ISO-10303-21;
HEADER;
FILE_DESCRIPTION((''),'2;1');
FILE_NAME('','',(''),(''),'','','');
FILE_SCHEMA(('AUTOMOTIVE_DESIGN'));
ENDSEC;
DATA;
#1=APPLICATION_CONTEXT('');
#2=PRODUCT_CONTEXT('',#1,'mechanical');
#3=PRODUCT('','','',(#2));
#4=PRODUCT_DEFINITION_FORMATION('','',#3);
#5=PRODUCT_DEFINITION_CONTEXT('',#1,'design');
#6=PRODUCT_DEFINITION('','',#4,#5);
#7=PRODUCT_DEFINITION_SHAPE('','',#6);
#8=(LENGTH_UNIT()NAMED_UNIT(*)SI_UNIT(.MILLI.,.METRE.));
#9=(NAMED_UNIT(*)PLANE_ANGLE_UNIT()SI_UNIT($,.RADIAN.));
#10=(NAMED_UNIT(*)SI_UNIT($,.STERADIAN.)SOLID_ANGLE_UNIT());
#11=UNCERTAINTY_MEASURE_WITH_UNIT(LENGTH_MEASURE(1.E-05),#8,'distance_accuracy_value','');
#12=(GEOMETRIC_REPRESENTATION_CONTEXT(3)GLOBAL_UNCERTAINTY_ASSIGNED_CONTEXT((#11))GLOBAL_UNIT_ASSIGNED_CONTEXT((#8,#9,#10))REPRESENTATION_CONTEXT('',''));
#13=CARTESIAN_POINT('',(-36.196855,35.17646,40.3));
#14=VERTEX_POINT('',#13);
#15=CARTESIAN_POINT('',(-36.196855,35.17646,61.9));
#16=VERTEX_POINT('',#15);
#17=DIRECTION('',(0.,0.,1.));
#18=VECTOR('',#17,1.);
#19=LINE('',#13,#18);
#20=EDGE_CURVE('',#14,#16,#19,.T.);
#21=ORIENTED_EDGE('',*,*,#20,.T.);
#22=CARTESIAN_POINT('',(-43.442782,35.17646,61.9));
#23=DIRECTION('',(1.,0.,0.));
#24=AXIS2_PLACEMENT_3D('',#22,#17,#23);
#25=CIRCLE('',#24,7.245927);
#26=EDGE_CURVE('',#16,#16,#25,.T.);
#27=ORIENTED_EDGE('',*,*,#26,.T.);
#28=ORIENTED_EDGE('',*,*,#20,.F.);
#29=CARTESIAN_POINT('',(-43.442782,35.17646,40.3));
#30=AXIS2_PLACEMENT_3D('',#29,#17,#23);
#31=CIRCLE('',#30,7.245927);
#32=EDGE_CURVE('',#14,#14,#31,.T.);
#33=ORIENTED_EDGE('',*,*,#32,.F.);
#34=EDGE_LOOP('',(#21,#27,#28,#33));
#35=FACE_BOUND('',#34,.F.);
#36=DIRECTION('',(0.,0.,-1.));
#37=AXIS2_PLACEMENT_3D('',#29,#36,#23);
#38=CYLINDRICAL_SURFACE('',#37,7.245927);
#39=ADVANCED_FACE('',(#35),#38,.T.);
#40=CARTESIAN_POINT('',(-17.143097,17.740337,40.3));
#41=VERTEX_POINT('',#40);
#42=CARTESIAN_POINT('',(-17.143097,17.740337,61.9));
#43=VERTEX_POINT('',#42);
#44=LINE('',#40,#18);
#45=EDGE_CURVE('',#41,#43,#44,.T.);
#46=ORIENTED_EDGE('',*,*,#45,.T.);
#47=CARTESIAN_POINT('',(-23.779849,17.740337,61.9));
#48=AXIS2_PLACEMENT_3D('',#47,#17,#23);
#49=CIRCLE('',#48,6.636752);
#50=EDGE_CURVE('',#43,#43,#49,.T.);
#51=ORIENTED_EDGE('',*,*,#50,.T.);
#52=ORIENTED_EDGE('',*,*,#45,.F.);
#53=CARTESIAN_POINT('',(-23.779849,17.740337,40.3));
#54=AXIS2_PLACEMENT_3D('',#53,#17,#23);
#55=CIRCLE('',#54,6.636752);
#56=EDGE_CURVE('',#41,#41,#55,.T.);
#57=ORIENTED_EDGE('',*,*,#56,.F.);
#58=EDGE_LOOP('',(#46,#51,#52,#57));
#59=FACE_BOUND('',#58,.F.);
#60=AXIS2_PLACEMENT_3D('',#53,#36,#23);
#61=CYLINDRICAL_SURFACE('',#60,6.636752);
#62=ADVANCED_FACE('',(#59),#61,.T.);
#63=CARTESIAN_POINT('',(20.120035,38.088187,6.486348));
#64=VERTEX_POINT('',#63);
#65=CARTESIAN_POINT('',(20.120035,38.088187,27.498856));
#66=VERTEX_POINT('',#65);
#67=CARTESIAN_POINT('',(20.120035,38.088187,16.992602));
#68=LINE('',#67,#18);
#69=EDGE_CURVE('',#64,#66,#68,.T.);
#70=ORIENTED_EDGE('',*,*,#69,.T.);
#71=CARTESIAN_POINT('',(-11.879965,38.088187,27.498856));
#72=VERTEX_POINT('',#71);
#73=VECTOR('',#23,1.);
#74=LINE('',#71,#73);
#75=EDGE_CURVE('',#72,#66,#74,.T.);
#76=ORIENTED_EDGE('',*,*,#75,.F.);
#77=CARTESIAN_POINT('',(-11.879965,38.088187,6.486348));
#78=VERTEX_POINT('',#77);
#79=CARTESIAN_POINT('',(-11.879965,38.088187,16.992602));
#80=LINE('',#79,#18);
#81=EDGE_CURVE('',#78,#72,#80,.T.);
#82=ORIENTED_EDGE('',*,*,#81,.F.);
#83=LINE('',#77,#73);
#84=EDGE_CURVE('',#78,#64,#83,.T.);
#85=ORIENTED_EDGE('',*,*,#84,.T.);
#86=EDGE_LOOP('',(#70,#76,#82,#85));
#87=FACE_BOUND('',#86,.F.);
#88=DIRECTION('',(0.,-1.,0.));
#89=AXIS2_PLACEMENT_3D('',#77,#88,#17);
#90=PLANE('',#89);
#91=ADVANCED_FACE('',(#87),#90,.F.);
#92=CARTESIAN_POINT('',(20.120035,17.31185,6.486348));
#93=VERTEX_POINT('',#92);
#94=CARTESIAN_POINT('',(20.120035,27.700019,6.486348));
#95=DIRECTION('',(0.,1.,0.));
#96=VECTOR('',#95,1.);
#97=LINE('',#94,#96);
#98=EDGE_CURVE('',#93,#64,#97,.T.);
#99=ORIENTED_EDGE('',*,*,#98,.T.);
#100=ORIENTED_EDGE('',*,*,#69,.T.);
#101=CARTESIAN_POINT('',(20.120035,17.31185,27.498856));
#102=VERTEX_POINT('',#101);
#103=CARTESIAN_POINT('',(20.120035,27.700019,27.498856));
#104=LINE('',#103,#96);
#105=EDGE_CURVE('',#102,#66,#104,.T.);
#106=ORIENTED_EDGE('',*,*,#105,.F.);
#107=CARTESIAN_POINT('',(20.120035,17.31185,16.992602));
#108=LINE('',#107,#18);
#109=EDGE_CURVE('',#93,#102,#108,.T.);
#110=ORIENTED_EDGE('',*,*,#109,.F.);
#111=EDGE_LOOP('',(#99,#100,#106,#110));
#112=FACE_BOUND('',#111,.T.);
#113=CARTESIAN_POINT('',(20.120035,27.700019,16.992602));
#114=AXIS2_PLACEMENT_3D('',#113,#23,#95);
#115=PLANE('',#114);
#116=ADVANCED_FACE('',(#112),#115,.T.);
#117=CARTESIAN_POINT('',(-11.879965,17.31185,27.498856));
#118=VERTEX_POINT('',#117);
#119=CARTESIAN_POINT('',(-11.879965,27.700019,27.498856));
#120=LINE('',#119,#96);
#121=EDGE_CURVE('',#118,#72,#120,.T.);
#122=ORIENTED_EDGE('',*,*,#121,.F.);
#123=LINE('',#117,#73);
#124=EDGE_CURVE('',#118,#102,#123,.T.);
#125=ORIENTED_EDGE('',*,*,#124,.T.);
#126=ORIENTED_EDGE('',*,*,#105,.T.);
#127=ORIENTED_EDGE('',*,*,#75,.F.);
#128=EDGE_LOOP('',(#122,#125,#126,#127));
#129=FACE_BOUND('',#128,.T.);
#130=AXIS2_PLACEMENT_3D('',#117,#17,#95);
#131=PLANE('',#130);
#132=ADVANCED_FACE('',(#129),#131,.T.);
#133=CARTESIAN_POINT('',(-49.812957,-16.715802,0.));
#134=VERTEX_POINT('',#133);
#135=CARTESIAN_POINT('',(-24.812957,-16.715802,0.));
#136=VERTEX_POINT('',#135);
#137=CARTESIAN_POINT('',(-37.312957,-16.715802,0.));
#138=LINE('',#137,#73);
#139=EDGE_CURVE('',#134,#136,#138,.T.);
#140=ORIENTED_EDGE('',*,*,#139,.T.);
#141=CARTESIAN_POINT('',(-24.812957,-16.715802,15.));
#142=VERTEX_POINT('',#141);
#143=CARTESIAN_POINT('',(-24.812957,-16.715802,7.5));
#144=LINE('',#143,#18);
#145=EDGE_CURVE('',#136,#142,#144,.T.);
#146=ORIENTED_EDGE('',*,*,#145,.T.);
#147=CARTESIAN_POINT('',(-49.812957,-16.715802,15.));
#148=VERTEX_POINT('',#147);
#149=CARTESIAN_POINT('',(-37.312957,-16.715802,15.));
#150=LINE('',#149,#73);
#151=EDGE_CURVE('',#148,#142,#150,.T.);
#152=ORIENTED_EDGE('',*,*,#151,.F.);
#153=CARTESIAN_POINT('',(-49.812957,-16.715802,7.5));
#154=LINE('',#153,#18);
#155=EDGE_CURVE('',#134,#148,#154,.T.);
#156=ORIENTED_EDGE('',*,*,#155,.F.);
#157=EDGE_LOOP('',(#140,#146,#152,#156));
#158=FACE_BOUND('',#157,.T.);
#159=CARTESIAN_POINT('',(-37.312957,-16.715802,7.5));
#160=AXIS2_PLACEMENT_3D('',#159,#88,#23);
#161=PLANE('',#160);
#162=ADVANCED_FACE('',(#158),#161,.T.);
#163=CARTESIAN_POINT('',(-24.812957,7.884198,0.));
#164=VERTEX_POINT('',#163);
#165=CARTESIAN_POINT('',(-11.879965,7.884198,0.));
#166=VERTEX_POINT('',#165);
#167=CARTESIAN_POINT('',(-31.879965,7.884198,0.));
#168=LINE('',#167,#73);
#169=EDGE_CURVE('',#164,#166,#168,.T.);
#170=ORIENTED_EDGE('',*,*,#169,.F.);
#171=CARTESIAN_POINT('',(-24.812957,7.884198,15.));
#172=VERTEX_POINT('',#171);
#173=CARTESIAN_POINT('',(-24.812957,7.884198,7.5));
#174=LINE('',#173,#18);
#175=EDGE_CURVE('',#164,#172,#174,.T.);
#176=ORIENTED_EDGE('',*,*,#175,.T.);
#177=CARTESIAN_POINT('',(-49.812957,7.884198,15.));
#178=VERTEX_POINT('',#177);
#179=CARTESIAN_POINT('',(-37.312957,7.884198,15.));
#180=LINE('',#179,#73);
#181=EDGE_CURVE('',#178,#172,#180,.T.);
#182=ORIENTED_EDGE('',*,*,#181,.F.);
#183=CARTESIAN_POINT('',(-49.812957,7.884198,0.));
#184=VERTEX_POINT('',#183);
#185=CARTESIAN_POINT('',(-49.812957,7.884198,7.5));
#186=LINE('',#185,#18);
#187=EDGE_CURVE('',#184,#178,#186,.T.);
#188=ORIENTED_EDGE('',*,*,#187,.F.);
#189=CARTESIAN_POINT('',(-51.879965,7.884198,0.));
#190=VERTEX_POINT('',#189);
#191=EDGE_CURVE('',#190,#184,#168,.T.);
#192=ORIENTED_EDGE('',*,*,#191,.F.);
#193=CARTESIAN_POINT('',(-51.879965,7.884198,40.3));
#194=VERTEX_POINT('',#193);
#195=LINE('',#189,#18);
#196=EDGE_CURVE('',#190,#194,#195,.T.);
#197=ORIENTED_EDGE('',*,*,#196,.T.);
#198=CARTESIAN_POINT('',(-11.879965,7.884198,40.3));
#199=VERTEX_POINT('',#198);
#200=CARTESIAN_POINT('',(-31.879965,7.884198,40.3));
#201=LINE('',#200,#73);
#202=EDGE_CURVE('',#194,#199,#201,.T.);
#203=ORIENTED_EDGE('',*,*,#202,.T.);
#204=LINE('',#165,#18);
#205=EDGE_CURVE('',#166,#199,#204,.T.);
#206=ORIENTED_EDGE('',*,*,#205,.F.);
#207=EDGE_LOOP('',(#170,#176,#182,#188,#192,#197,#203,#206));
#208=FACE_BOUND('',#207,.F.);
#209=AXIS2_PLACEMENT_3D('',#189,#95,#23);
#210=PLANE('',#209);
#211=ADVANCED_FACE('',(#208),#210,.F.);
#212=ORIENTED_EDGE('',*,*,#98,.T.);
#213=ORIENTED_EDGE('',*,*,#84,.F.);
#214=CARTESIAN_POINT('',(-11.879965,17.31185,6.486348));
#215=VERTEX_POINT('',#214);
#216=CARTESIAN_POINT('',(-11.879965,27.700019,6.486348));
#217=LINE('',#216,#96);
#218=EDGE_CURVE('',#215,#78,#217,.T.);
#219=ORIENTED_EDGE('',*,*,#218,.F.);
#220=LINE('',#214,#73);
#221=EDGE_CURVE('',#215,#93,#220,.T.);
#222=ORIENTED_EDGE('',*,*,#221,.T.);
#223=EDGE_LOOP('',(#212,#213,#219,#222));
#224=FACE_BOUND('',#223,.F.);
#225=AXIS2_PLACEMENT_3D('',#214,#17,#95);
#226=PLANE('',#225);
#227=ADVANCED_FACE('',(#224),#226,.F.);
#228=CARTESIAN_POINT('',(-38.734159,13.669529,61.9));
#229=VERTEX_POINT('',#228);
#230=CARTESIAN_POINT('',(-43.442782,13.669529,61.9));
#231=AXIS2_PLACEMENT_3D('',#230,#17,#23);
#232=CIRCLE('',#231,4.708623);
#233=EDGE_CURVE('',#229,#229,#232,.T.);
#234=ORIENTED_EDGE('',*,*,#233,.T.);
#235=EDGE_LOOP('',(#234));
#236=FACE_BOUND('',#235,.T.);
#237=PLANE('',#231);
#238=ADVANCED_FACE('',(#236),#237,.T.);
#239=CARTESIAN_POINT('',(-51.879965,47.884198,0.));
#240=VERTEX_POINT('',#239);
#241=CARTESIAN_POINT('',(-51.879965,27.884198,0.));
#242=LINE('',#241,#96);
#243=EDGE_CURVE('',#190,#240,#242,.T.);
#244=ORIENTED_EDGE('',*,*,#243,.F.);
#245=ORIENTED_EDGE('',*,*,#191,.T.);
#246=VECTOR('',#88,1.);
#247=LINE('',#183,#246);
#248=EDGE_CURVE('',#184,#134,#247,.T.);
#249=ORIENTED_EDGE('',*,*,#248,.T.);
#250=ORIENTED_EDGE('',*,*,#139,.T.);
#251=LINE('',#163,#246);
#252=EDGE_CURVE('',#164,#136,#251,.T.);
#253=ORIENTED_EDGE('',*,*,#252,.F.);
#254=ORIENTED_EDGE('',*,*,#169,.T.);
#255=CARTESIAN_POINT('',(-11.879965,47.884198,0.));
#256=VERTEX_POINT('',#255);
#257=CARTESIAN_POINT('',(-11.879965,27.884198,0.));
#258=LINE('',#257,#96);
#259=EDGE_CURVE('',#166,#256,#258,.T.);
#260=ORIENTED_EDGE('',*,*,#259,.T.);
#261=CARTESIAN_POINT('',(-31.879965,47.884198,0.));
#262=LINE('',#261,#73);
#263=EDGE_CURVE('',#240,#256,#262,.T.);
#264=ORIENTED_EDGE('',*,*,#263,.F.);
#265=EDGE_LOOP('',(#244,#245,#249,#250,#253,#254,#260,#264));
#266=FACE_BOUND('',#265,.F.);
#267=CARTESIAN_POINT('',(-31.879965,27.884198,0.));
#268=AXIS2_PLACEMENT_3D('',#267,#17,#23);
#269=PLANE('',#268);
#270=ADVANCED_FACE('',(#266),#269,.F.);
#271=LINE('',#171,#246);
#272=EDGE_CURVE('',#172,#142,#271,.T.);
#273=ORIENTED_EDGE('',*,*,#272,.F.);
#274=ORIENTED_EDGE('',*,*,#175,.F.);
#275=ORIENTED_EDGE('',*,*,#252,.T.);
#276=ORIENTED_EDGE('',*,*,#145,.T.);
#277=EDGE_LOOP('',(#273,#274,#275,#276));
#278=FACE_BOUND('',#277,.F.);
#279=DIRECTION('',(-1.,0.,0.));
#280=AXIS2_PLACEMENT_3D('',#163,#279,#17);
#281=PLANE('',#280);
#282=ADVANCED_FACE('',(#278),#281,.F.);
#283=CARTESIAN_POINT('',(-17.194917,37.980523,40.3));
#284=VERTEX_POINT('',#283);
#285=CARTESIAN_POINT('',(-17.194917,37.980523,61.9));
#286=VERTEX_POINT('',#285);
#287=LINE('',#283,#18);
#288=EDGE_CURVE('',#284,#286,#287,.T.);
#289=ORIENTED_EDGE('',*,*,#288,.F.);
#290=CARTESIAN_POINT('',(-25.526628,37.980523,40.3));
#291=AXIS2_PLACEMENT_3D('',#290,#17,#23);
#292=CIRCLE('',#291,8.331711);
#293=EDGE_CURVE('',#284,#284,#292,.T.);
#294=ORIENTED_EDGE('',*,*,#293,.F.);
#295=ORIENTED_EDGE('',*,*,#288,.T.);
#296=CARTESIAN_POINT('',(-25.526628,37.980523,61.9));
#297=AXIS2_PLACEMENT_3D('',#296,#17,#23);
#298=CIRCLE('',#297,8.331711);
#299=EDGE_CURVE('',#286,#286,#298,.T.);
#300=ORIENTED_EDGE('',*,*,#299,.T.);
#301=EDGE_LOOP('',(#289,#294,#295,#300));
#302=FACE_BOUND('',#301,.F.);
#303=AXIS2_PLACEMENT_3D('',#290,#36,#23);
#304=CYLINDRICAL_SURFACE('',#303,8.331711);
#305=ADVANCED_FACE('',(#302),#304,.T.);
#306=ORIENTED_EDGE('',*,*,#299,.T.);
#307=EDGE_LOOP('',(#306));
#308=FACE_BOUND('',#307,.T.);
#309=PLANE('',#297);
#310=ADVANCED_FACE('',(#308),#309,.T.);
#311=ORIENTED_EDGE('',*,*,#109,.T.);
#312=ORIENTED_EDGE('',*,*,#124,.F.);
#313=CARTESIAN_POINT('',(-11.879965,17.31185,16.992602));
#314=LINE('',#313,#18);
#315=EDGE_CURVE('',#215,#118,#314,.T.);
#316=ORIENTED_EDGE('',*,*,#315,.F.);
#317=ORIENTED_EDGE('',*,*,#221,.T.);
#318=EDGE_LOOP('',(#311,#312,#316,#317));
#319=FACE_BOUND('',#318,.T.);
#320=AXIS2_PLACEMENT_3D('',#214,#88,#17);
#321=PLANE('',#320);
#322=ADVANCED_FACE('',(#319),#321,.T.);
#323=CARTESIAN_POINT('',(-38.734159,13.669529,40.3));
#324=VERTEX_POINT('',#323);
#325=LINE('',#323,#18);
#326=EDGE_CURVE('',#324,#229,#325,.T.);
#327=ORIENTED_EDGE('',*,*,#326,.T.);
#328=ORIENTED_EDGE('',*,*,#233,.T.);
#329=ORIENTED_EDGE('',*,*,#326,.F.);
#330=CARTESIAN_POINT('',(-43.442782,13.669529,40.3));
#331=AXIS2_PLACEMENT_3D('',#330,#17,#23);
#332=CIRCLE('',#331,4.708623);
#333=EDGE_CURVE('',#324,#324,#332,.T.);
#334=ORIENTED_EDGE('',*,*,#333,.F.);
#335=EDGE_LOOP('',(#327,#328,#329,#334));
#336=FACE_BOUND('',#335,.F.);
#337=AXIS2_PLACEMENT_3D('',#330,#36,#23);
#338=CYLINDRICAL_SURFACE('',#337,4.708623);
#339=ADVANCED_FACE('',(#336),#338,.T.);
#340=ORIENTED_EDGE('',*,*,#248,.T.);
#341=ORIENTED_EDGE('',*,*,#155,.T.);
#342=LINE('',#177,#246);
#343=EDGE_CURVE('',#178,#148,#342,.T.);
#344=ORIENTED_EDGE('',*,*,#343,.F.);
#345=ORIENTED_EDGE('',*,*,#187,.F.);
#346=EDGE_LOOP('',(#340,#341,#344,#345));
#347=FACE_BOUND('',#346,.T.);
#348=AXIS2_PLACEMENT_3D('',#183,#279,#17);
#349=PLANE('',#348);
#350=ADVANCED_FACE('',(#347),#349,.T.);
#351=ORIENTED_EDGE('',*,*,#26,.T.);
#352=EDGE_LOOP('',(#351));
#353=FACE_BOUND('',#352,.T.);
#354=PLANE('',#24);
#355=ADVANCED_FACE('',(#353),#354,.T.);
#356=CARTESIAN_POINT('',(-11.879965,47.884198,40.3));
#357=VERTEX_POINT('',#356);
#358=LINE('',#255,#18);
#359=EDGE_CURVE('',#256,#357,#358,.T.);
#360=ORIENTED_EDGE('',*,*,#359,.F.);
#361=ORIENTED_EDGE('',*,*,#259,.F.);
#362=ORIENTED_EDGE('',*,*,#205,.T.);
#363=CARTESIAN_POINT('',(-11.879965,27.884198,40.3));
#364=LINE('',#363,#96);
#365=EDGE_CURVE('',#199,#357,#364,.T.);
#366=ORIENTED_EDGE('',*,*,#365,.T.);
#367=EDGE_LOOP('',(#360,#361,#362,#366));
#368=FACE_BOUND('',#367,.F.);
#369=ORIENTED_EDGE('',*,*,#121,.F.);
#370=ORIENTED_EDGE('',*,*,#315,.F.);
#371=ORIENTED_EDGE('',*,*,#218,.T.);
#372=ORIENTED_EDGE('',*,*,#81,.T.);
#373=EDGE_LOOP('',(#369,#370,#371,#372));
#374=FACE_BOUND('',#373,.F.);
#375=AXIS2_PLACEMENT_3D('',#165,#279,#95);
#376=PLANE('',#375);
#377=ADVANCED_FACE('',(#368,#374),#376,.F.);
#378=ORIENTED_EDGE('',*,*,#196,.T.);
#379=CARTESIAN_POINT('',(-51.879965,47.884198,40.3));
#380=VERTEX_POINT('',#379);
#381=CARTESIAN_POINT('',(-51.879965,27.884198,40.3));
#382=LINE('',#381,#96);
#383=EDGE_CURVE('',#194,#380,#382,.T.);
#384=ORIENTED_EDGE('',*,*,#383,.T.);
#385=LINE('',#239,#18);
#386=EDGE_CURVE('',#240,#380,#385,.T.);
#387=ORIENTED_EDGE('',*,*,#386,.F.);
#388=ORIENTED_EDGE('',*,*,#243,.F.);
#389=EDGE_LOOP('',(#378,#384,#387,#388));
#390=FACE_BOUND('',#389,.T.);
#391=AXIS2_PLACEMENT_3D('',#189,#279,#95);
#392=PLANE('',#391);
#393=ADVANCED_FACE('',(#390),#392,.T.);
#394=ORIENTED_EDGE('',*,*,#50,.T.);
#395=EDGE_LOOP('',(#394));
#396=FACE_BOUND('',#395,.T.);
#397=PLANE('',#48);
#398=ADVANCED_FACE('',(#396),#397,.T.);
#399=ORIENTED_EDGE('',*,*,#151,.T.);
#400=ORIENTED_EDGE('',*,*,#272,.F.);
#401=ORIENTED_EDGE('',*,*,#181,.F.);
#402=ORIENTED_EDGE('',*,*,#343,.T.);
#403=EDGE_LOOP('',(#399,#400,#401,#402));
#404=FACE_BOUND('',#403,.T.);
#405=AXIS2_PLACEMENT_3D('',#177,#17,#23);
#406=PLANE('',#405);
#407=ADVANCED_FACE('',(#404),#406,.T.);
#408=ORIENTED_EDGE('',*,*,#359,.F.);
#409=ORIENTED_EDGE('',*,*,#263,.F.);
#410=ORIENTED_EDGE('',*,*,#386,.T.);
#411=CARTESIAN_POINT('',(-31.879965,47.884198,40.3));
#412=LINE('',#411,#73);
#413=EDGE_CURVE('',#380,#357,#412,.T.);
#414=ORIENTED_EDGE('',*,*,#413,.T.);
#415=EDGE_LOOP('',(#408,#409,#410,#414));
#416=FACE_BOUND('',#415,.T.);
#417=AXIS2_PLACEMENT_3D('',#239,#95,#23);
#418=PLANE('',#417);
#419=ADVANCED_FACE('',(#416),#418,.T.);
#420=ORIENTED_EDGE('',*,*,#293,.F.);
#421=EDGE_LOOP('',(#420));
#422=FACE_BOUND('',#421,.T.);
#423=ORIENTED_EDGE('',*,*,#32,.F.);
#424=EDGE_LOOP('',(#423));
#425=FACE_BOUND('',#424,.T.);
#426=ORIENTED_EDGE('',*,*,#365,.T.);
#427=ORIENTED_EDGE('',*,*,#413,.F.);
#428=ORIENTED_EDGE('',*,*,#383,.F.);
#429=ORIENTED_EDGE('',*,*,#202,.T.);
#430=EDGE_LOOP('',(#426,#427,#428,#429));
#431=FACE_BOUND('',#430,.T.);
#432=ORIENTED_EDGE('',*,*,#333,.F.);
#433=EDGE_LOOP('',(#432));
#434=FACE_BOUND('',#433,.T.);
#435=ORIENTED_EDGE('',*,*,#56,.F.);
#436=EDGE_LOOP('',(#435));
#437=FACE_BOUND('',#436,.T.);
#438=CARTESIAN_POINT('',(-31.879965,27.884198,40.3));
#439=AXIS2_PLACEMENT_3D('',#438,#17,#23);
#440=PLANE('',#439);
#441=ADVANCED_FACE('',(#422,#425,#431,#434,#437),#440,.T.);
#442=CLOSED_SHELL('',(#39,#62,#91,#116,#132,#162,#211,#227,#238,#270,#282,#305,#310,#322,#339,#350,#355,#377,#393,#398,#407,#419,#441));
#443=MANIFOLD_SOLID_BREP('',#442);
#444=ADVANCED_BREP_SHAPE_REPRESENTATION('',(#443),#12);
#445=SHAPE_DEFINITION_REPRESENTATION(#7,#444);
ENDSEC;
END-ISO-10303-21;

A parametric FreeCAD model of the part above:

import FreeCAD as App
import Part
import Sketcher


def add_polygon(sketch, points):
    """Adds a closed chain of lines whose ends are joined by coincident constraints."""
    first, n = sketch.GeometryCount, len(points)
    for a, b in zip(points, points[1:] + points[:1]):
        sketch.addGeometry(Part.LineSegment(App.Vector(*a, 0), App.Vector(*b, 0)), False)
    for i in range(n):
        sketch.addConstraint(Sketcher.Constraint("Coincident", first + i, 2, first + (i + 1) % n, 1))

doc = App.newDocument("Part")
body = doc.addObject("PartDesign::Body", "Body")

# Sketch on XY plane
sketch1 = doc.addObject("Sketcher::SketchObject", "Sketch")
body.addObject(sketch1)
sketch1.AttachmentSupport = (doc.XY_Plane, [""])
sketch1.MapMode = "FlatFace"
add_polygon(sketch1, [(-52, 48), (-52, 8), (-12, 8), (-12, 48)])  # lines 0-3
sketch1.addConstraint([
    Sketcher.Constraint("Vertical", 0),
    Sketcher.Constraint("Horizontal", 1),
    Sketcher.Constraint("Vertical", 2),
    Sketcher.Constraint("Horizontal", 3),
    Sketcher.Constraint("Equal", 3, 0),
    Sketcher.Constraint("DistanceX", 1, 1, 1, 2, 40.0),
    Sketcher.Constraint("DistanceX", 0, 2, -1, 1, 51.879965),
    Sketcher.Constraint("DistanceY", -1, 1, 0, 2, 7.884198),
])
pad1 = doc.addObject("PartDesign::Pad", "Pad")
body.addObject(pad1)
pad1.Profile = sketch1
pad1.Length = 40.3

# Sketch on XZ plane
sketch2 = doc.addObject("Sketcher::SketchObject", "Sketch001")
body.addObject(sketch2)
sketch2.AttachmentSupport = (doc.XZ_Plane, [""])
sketch2.MapMode = "FlatFace"
sketch2.AttachmentOffset = App.Placement(App.Vector(0, 0, -7.884198), App.Rotation())
add_polygon(sketch2, [(-50, 15), (-50, 0), (-25, 0), (-25, 15)])  # lines 0-3
sketch2.addConstraint([
    Sketcher.Constraint("Vertical", 0),
    Sketcher.Constraint("Horizontal", 1),
    Sketcher.Constraint("Vertical", 2),
    Sketcher.Constraint("Horizontal", 3),
    Sketcher.Constraint("PointOnObject", 0, 2, -1),
    Sketcher.Constraint("DistanceX", 1, 1, 1, 2, 25.0),
    Sketcher.Constraint("DistanceY", 0, 2, 0, 1, 15.0),
    Sketcher.Constraint("DistanceX", 0, 2, -1, 1, 49.812957),
])
pad2 = doc.addObject("PartDesign::Pad", "Pad001")
body.addObject(pad2)
pad2.Profile = sketch2
pad2.Length = 24.6

# Sketch on YZ plane
sketch3 = doc.addObject("Sketcher::SketchObject", "Sketch002")
body.addObject(sketch3)
sketch3.AttachmentSupport = (doc.YZ_Plane, [""])
sketch3.MapMode = "FlatFace"
sketch3.AttachmentOffset = App.Placement(App.Vector(0, 0, -11.879965), App.Rotation())
add_polygon(sketch3, [(17, 27), (17, 6), (38, 6), (38, 27)])  # lines 0-3
sketch3.addConstraint([
    Sketcher.Constraint("Vertical", 0),
    Sketcher.Constraint("Horizontal", 1),
    Sketcher.Constraint("Vertical", 2),
    Sketcher.Constraint("Horizontal", 3),
    Sketcher.Constraint("DistanceY", 0, 2, 0, 1, 21.012508),
    Sketcher.Constraint("DistanceX", 1, 1, 1, 2, 20.776337),
    Sketcher.Constraint("DistanceX", -1, 1, 0, 2, 17.31185),
    Sketcher.Constraint("DistanceY", -1, 1, 0, 2, 6.486348),
])
pad3 = doc.addObject("PartDesign::Pad", "Pad002")
body.addObject(pad3)
pad3.Profile = sketch3
pad3.Length = 32

# Sketch on XY plane
sketch4 = doc.addObject("Sketcher::SketchObject", "Sketch003")
body.addObject(sketch4)
sketch4.AttachmentSupport = (doc.XY_Plane, [""])
sketch4.MapMode = "FlatFace"
sketch4.AttachmentOffset = App.Placement(App.Vector(0, 0, 40.3), App.Rotation())
sketch4.addGeometry([
    Part.Circle(App.Vector(-43.4, 35.2, 0), App.Vector(0, 0, 1), 7.2),
    Part.Circle(App.Vector(-23.8, 17.7, 0), App.Vector(0, 0, 1), 6.6),
    Part.Circle(App.Vector(-25.5, 38, 0), App.Vector(0, 0, 1), 8.3),
    Part.Circle(App.Vector(-43.4, 13.7, 0), App.Vector(0, 0, 1), 4.7),
], False)
sketch4.addConstraint([
    Sketcher.Constraint("Vertical", 0, 3, 3, 3),
    Sketcher.Constraint("Diameter", 0, 14.491854),
    Sketcher.Constraint("Diameter", 1, 13.273504),
    Sketcher.Constraint("Diameter", 2, 16.663422),
    Sketcher.Constraint("Diameter", 3, 9.417246),
    Sketcher.Constraint("DistanceY", -1, 1, 0, 3, 35.17646),
    Sketcher.Constraint("DistanceX", 1, 3, -1, 1, 23.779849),
    Sketcher.Constraint("DistanceY", -1, 1, 3, 3, 13.669529),
    Sketcher.Constraint("DistanceX", 2, 3, 1, 3, 1.746779),
    Sketcher.Constraint("DistanceX", 0, 3, -1, 1, 43.442782),
    Sketcher.Constraint("DistanceY", -1, 1, 1, 3, 17.740337),
    Sketcher.Constraint("DistanceY", -1, 1, 2, 3, 37.980523),
])
pad4 = doc.addObject("PartDesign::Pad", "Pad003")
body.addObject(pad4)
pad4.Profile = sketch4
pad4.Length = 21.6

doc.recompute()
